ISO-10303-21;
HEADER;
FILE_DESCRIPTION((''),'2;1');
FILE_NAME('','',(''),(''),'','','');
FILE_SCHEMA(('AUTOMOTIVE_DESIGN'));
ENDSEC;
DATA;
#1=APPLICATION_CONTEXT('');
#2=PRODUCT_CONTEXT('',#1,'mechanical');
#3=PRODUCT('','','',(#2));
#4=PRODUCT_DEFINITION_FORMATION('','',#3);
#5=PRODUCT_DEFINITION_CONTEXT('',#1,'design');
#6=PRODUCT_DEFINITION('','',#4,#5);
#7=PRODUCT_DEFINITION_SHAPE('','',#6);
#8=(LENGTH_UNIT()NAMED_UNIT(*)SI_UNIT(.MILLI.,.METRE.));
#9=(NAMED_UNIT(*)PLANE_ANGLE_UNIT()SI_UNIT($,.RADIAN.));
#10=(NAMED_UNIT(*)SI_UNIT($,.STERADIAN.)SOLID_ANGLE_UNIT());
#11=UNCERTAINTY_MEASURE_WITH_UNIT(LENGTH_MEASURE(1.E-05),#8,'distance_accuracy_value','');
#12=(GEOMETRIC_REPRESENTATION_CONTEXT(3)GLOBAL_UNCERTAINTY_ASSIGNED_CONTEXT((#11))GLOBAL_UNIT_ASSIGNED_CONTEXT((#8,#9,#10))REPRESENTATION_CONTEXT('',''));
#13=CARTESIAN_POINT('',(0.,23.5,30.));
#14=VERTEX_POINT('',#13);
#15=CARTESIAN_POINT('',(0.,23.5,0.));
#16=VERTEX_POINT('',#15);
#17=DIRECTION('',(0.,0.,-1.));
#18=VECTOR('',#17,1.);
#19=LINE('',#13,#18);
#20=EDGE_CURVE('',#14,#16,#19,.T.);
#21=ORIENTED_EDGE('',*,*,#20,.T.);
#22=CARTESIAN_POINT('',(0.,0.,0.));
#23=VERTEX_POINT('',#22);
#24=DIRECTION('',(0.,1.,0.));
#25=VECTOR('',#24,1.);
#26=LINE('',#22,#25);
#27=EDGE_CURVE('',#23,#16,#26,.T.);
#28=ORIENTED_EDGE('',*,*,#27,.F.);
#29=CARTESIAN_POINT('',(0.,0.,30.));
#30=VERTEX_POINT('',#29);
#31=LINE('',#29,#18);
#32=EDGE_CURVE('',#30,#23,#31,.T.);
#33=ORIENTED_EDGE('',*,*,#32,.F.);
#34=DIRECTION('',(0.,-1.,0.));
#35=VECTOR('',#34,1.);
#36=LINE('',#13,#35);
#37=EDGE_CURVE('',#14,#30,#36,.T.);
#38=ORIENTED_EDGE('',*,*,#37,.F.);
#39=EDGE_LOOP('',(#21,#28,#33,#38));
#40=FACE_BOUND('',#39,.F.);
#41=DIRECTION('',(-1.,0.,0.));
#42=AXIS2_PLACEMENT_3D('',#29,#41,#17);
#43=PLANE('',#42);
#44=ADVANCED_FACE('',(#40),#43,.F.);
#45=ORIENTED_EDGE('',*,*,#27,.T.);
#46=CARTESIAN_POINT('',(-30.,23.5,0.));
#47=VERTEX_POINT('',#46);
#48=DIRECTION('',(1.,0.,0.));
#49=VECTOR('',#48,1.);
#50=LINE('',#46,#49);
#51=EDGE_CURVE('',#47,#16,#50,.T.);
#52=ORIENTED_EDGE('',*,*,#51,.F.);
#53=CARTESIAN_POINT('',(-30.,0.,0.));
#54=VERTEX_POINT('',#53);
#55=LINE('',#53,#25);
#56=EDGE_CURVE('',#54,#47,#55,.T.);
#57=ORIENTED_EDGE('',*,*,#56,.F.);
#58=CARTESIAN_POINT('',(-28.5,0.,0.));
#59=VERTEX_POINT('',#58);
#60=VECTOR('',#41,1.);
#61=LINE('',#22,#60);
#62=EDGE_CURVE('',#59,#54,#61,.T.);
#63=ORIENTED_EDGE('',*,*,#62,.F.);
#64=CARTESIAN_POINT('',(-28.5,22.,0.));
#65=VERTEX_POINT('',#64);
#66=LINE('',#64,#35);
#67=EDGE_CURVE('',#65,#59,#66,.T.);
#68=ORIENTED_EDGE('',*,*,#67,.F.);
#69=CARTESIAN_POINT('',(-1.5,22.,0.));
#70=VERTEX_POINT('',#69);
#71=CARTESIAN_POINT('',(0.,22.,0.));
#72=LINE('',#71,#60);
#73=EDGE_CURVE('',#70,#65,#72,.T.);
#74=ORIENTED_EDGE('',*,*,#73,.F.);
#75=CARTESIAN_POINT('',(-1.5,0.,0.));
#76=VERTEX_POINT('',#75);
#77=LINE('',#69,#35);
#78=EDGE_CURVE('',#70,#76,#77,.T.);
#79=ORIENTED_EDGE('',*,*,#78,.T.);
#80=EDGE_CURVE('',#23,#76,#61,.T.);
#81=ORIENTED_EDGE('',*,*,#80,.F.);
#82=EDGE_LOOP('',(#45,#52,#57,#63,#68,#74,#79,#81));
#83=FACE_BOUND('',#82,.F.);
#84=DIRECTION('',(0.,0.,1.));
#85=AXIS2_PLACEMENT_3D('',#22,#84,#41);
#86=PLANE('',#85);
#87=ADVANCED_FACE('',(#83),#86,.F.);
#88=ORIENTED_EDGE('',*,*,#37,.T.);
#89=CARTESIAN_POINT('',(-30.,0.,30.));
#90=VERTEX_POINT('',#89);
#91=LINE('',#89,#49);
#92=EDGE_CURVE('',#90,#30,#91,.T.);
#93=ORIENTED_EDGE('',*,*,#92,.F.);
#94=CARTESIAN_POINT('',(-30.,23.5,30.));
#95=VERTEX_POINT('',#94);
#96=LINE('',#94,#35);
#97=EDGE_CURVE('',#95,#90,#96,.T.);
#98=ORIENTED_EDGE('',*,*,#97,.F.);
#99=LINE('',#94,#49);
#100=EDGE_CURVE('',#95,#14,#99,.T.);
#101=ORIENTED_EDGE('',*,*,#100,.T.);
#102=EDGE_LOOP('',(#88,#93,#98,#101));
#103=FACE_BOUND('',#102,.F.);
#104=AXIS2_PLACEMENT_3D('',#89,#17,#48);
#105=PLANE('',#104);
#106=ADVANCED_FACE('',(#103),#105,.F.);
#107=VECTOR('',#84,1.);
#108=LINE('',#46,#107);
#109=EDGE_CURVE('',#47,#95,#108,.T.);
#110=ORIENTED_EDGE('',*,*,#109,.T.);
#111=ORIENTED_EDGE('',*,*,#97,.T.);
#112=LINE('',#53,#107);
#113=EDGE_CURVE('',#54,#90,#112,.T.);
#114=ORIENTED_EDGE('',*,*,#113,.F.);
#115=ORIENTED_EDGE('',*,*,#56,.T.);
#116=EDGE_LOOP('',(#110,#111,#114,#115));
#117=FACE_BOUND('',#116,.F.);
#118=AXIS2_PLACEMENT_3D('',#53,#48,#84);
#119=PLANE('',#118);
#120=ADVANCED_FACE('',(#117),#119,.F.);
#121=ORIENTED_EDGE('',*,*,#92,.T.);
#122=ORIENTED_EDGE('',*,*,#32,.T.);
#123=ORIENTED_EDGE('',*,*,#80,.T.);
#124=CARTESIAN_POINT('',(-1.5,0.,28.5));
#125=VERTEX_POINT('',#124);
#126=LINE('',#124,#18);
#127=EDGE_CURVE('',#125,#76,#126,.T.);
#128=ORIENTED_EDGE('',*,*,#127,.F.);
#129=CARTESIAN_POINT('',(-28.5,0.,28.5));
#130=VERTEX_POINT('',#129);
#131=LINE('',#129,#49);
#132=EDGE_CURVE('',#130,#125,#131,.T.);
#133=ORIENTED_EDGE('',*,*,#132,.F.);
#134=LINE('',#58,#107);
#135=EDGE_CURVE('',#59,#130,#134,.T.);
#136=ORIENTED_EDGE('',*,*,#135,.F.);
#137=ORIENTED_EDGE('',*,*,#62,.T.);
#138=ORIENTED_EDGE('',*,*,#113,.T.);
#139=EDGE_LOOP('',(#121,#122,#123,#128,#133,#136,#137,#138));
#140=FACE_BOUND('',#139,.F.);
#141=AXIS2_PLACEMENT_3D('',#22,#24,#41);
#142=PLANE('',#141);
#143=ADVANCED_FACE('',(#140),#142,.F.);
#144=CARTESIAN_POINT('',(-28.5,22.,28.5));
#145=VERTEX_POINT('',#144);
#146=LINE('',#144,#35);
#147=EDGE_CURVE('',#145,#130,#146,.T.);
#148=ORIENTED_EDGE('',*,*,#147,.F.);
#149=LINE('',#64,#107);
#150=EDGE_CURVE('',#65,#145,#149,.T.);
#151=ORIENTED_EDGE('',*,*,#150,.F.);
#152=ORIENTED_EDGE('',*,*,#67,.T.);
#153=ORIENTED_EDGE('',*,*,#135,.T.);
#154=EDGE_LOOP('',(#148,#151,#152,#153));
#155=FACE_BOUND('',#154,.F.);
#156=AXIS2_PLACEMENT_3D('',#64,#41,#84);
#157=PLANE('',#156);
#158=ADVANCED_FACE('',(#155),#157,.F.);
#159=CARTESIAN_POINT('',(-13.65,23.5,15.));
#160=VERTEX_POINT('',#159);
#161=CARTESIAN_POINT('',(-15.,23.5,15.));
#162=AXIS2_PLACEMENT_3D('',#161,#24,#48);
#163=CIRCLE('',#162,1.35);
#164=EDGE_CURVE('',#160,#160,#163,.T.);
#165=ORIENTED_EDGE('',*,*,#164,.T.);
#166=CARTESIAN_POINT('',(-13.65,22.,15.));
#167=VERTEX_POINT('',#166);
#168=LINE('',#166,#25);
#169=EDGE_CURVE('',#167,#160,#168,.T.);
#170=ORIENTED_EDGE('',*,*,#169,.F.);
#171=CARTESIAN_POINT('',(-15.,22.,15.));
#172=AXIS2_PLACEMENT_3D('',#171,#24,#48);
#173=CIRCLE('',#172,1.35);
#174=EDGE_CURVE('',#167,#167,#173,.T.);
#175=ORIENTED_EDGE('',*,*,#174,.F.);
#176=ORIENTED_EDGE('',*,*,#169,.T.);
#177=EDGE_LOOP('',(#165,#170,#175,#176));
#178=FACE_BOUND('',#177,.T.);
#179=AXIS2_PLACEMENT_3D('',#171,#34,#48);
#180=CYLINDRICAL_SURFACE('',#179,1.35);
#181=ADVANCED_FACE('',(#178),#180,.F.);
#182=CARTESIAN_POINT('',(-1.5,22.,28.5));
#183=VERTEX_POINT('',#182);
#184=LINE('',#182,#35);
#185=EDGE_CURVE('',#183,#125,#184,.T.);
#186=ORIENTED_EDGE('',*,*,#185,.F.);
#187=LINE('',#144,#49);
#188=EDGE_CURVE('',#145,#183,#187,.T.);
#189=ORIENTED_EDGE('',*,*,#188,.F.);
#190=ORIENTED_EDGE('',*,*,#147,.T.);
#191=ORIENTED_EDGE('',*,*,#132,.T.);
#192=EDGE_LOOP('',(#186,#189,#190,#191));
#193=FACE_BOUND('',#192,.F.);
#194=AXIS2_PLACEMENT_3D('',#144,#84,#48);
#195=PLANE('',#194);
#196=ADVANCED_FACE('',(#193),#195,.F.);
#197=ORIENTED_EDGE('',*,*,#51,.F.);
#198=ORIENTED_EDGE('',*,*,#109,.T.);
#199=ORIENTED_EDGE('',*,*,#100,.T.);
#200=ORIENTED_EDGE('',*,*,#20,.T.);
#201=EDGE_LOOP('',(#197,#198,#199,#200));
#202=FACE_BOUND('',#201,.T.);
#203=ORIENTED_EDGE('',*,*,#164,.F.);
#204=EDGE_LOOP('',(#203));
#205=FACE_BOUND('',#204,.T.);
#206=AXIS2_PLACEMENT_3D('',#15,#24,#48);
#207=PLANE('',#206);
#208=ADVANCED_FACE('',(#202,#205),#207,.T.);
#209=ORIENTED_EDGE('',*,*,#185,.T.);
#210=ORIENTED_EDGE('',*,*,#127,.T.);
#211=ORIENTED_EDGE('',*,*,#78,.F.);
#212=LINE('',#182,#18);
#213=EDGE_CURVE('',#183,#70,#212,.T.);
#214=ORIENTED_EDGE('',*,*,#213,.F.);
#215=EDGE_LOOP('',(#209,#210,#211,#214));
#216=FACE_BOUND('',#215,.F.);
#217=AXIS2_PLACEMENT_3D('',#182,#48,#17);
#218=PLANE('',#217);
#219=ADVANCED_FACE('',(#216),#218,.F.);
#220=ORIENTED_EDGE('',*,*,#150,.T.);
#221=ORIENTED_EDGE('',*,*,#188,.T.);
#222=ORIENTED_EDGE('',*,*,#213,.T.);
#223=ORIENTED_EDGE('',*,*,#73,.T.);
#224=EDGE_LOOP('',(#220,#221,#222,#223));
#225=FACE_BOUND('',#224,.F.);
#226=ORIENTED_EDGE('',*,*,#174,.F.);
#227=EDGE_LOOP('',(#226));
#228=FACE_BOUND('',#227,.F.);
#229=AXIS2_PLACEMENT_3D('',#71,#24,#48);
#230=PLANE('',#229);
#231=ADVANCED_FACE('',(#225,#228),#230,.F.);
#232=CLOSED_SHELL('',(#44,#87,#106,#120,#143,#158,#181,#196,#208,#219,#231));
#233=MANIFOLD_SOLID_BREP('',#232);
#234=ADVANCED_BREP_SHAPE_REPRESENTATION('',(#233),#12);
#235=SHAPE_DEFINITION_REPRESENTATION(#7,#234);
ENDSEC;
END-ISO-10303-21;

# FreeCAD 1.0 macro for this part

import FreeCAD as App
import Part
import Sketcher

V = App.Vector


def add_polygon(sketch, points):
    """Adds a closed chain of lines whose ends are joined by coincident constraints."""
    first, n = sketch.GeometryCount, len(points)
    for a, b in zip(points, points[1:] + points[:1]):
        sketch.addGeometry(Part.LineSegment(App.Vector(*a, 0), App.Vector(*b, 0)), False)
    for i in range(n):
        sketch.addConstraint(Sketcher.Constraint("Coincident", first + i, 2, first + (i + 1) % n, 1))

doc = App.newDocument("Part")
body = doc.addObject("PartDesign::Body", "Body")

sketch1 = body.newObject("Sketcher::SketchObject", "Sketch")
sketch1.AttachmentSupport = (doc.getObject("XZ_Plane"), [""])
sketch1.MapMode = "FlatFace"
add_polygon(sketch1, [(0, 30), (0, 0), (-30, 0), (-30, 30)])
sketch1.addConstraint([
    Sketcher.Constraint("Vertical", 0),
    Sketcher.Constraint("Horizontal", 1),
    Sketcher.Constraint("Vertical", 2),
    Sketcher.Constraint("Horizontal", 3),
    Sketcher.Constraint("Coincident", 0, 2, -1, 1),
    Sketcher.Constraint("Equal", 3, 0),
    Sketcher.Constraint("DistanceX", 1, 2, 1, 1, 30.0),
])
pad1 = body.newObject("PartDesign::Pad", "Pad")
pad1.Profile = sketch1
pad1.Length = 22
pad1.Reversed = True

sketch2 = body.newObject("Sketcher::SketchObject", "Sketch001")
sketch2.AttachmentSupport = (doc.getObject("XZ_Plane"), [""])
sketch2.MapMode = "FlatFace"
sketch2.AttachmentOffset = App.Placement(V(0, 0, -22), App.Rotation())
add_polygon(sketch2, [(-2, 28), (-2, 0), (-28, 0), (-28, 28)])
sketch2.addConstraint([
    Sketcher.Constraint("Vertical", 0),
    Sketcher.Constraint("Horizontal", 1),
    Sketcher.Constraint("Vertical", 2),
    Sketcher.Constraint("Horizontal", 3),
    Sketcher.Constraint("PointOnObject", 0, 2, -1),
    Sketcher.Constraint("DistanceX", 0, 2, -1, 1, 1.5),
    Sketcher.Constraint("DistanceX", 1, 2, 1, 1, 27.0),
    Sketcher.Constraint("DistanceY", 0, 2, 0, 1, 28.5),
])
pocket1 = body.newObject("PartDesign::Pocket", "Pocket")
pocket1.Profile = sketch2
pocket1.Length = 22
pocket1.Reversed = True

sketch3 = body.newObject("Sketcher::SketchObject", "Sketch002")
sketch3.AttachmentSupport = (doc.getObject("XZ_Plane"), [""])
sketch3.MapMode = "FlatFace"
sketch3.AttachmentOffset = App.Placement(V(0, 0, -22), App.Rotation())
add_polygon(sketch3, [(-30, 0), (-30, 30), (0, 30), (0, 0)])
sketch3.addGeometry(Part.Circle(V(-15, 15, 0), V(0, 0, 1), 1.4), False)
sketch3.addConstraint([
    Sketcher.Constraint("Vertical", 0),
    Sketcher.Constraint("Horizontal", 1),
    Sketcher.Constraint("Vertical", 2),
    Sketcher.Constraint("Horizontal", 3),
    Sketcher.Constraint("Coincident", 2, 2, -1, 1),
    Sketcher.Constraint("Equal", 3, 0),
    Sketcher.Constraint("Diameter", 4, 2.7),
    Sketcher.Constraint("DistanceX", 1, 1, 1, 2, 30.0),
    Sketcher.Constraint("DistanceX", 4, 3, -1, 1, 15.0),
    Sketcher.Constraint("DistanceY", -1, 1, 4, 3, 15.0),
])
pad2 = body.newObject("PartDesign::Pad", "Pad001")
pad2.Profile = sketch3
pad2.Length = 1.5
pad2.Reversed = True

doc.recompute()
